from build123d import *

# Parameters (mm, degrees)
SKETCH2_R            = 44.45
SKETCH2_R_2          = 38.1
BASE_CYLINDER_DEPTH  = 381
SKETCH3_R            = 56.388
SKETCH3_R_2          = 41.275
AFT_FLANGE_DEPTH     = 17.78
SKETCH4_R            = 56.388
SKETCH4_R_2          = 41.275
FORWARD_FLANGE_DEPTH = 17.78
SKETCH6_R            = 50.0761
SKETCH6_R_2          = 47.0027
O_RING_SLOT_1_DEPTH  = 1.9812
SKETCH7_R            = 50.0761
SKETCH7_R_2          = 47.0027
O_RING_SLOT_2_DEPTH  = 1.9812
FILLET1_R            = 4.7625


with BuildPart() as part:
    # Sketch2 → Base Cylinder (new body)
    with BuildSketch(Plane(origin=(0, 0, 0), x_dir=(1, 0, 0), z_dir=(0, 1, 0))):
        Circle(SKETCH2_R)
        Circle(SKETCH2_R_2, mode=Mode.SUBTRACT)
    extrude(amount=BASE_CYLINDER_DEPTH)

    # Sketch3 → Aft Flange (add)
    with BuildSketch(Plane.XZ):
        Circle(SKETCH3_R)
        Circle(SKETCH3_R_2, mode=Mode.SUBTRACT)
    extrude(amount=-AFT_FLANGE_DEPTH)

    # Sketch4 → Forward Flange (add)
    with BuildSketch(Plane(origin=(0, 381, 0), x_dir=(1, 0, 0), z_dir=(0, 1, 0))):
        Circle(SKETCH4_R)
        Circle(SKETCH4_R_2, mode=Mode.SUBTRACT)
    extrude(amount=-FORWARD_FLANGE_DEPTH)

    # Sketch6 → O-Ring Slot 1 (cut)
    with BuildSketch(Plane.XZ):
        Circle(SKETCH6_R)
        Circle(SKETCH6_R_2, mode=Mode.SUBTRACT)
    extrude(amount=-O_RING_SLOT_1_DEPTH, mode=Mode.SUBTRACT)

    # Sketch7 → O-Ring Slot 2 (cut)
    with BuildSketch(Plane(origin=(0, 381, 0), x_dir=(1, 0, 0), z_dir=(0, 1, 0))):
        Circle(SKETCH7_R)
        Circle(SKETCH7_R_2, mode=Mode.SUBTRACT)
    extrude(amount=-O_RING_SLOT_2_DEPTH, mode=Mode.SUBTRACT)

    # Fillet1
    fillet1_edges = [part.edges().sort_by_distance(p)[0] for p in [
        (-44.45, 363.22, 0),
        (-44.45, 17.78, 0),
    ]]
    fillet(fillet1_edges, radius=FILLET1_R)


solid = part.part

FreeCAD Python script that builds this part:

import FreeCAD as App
import Part
import Sketcher
Q = App.Units.Quantity


def edges_at(feature, points):
    """Names of the edges that pass closest to the given points."""
    edges = feature.Shape.Edges
    near = lambda p: min(range(len(edges)), key=lambda i: edges[i].distToShape(Part.Vertex(*p))[0])
    return sorted({f"Edge{near(p) + 1}" for p in points})

doc = App.newDocument("Part")
body = doc.addObject("PartDesign::Body", "Body")

# Sketch on XZ plane
sketch1 = doc.addObject("Sketcher::SketchObject", "Sketch")
body.addObject(sketch1)
sketch1.AttachmentSupport = (doc.XZ_Plane, [""])
sketch1.MapMode = "FlatFace"
sketch1.addGeometry([
    Part.Circle(App.Vector(0, 0, 0), App.Vector(0, 0, 1), 44),
    Part.Circle(App.Vector(0, 0, 0), App.Vector(0, 0, 1), 38),
], False)
sketch1.addConstraint([
    Sketcher.Constraint("Coincident", 0, 3, -1, 1),
    Sketcher.Constraint("Coincident", 1, 3, -1, 1),
    Sketcher.Constraint("Diameter", 1, Q("3 in")),
    Sketcher.Constraint("Diameter", 0, Q("3.5 in")),
])
pad1 = doc.addObject("PartDesign::Pad", "Pad")
body.addObject(pad1)
pad1.Profile = sketch1
pad1.Length = Q("15 in")
pad1.Reversed = True

# Sketch on XZ plane
sketch2 = doc.addObject("Sketcher::SketchObject", "Sketch001")
body.addObject(sketch2)
sketch2.AttachmentSupport = (doc.XZ_Plane, [""])
sketch2.MapMode = "FlatFace"
sketch2.addGeometry([
    Part.Circle(App.Vector(0, 0, 0), App.Vector(0, 0, 1), 56),
    Part.Circle(App.Vector(0, 0, 0), App.Vector(0, 0, 1), 41),
], False)
sketch2.addConstraint([
    Sketcher.Constraint("Coincident", 0, 3, -1, 1),
    Sketcher.Constraint("Coincident", 1, 3, -1, 1),
    Sketcher.Constraint("Diameter", 0, Q("4.44 in")),
    Sketcher.Constraint("Diameter", 1, Q("3.25 in")),
])
pad2 = doc.addObject("PartDesign::Pad", "Pad001")
body.addObject(pad2)
pad2.Profile = sketch2
pad2.Length = Q("0.7 in")
pad2.Reversed = True

# Sketch on XZ plane
sketch3 = doc.addObject("Sketcher::SketchObject", "Sketch002")
body.addObject(sketch3)
sketch3.AttachmentSupport = (doc.XZ_Plane, [""])
sketch3.MapMode = "FlatFace"
sketch3.AttachmentOffset = App.Placement(App.Vector(0, 0, -15 * 25.4), App.Rotation())
sketch3.addGeometry([
    Part.Circle(App.Vector(0, 0, 0), App.Vector(0, 0, 1), 56),
    Part.Circle(App.Vector(0, 0, 0), App.Vector(0, 0, 1), 41),
], False)
sketch3.addConstraint([
    Sketcher.Constraint("Coincident", 0, 3, -1, 1),
    Sketcher.Constraint("Coincident", 1, 3, -1, 1),
    Sketcher.Constraint("Diameter", 0, Q("4.44 in")),
    Sketcher.Constraint("Diameter", 1, Q("3.25 in")),
])
pad3 = doc.addObject("PartDesign::Pad", "Pad002")
body.addObject(pad3)
pad3.Profile = sketch3
pad3.Length = Q("0.7 in")

# Sketch on XZ plane
sketch4 = doc.addObject("Sketcher::SketchObject", "Sketch003")
body.addObject(sketch4)
sketch4.AttachmentSupport = (doc.XZ_Plane, [""])
sketch4.MapMode = "FlatFace"
sketch4.addGeometry([
    Part.Circle(App.Vector(0, 0, 0), App.Vector(0, 0, 1), 50),
    Part.Circle(App.Vector(0, 0, 0), App.Vector(0, 0, 1), 47),
], False)
sketch4.addConstraint([
    Sketcher.Constraint("Coincident", 0, 3, -1, 1),
    Sketcher.Constraint("Coincident", 1, 3, -1, 1),
    Sketcher.Constraint("Diameter", 0, Q("3.943 in")),
    Sketcher.Constraint("Diameter", 1, Q("3.701 in")),
])
pocket1 = doc.addObject("PartDesign::Pocket", "Pocket")
body.addObject(pocket1)
pocket1.Profile = sketch4
pocket1.Length = Q("0.078 in")

# Sketch on XZ plane
sketch5 = doc.addObject("Sketcher::SketchObject", "Sketch004")
body.addObject(sketch5)
sketch5.AttachmentSupport = (doc.XZ_Plane, [""])
sketch5.MapMode = "FlatFace"
sketch5.AttachmentOffset = App.Placement(App.Vector(0, 0, -15 * 25.4), App.Rotation())
sketch5.addGeometry([
    Part.Circle(App.Vector(0, 0, 0), App.Vector(0, 0, 1), 50),
    Part.Circle(App.Vector(0, 0, 0), App.Vector(0, 0, 1), 47),
], False)
sketch5.addConstraint([
    Sketcher.Constraint("Coincident", 0, 3, -1, 1),
    Sketcher.Constraint("Coincident", 1, 3, -1, 1),
    Sketcher.Constraint("Diameter", 0, Q("3.943 in")),
    Sketcher.Constraint("Diameter", 1, Q("3.701 in")),
])
pocket2 = doc.addObject("PartDesign::Pocket", "Pocket001")
body.addObject(pocket2)
pocket2.Profile = sketch5
pocket2.Length = Q("0.078 in")
pocket2.Reversed = True
doc.recompute()

fillet = doc.addObject("PartDesign::Fillet", "Fillet")
body.addObject(fillet)
fillet.Base = (pocket2, edges_at(pocket2, [(-44.45, 363.22, 0), (-44.45, 17.78, 0)]))
fillet.Radius = Q("0.1875 in")

doc.recompute()
